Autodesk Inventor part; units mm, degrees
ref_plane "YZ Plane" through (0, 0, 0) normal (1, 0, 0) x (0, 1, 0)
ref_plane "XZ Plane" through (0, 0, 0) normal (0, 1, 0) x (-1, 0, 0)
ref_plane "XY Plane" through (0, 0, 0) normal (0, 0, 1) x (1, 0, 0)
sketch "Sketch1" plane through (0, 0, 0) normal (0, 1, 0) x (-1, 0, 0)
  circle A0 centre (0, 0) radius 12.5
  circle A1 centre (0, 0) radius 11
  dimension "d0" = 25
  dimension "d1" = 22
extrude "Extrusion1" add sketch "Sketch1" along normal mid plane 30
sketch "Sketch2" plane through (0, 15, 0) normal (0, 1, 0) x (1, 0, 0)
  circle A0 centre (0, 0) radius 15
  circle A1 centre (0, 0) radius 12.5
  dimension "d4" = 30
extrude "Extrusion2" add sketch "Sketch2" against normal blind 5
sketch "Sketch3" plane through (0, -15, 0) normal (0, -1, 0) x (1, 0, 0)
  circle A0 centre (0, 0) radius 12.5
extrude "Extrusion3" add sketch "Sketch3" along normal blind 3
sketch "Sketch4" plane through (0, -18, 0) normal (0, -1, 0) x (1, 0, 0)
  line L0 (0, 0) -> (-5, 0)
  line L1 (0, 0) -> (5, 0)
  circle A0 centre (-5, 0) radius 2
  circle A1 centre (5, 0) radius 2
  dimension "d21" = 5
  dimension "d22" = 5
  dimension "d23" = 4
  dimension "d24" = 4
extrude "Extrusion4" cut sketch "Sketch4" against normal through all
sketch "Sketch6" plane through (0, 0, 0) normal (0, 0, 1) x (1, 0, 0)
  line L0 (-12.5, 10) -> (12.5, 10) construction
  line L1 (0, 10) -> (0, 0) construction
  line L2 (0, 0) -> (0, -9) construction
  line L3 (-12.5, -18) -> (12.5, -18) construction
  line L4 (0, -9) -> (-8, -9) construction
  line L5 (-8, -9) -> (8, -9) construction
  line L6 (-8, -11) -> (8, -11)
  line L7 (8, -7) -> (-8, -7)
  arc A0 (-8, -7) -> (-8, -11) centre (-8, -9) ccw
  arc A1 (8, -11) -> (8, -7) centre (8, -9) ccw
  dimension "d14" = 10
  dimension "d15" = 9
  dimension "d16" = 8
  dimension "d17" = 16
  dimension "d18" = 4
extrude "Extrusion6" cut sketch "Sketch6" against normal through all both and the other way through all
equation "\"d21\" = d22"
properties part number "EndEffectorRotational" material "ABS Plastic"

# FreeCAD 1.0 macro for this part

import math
import FreeCAD as App
import Part
import Sketcher

V = App.Vector

doc = App.newDocument("Part")
params = doc.addObject("Spreadsheet::Sheet", "Params")
for row, (alias, value) in enumerate([
    ("sketch1_diameter", "25 mm"),
    ("sketch1_diameter2", "22 mm"),
    ("pad1_length", "30 mm"),
    ("sketch2_diameter", "30 mm"),
    ("sketch2_diameter2", "25 mm"),
    ("pad2_length", "5 mm"),
    ("sketch3_diameter", "25 mm"),
    ("pad3_length", "3 mm"),
    ("sketch4_diameter", "4 mm"),
    ("sketch5_radius", "2 mm"),
    ("sketch5_width", "16 mm"),
], start=1):
    params.set(f"A{row}", alias)
    params.set(f"B{row}", "=" + value)
    params.setAlias(f"B{row}", alias)

body = doc.addObject("PartDesign::Body", "Body")

sketch1 = body.newObject("Sketcher::SketchObject", "Sketch")
sketch1.AttachmentSupport = (doc.getObject("XZ_Plane"), [""])
sketch1.MapMode = "FlatFace"
sketch1.addGeometry([
    Part.Circle(V(0, 0, 0), V(0, 0, 1), 12.5),
    Part.Circle(V(0, 0, 0), V(0, 0, 1), 11),
], False)
sketch1.addConstraint([
    Sketcher.Constraint("Coincident", 0, 3, -1, 1),
    Sketcher.Constraint("Coincident", 1, 3, -1, 1),
    Sketcher.Constraint("Diameter", 0, 25.0),
    Sketcher.Constraint("Diameter", 1, 22.0),
])
sketch1.setExpression("Constraints[2]", "Params.sketch1_diameter")
sketch1.setExpression("Constraints[3]", "Params.sketch1_diameter2")
pad1 = body.newObject("PartDesign::Pad", "Pad")
pad1.Profile = sketch1
pad1.setExpression("Length", "Params.pad1_length")
pad1.Midplane = True

sketch2 = body.newObject("Sketcher::SketchObject", "Sketch001")
sketch2.AttachmentSupport = (doc.getObject("XZ_Plane"), [""])
sketch2.MapMode = "FlatFace"
sketch2.AttachmentOffset = App.Placement(V(0, 0, -15), App.Rotation())
sketch2.addGeometry([
    Part.Circle(V(0, 0, 0), V(0, 0, 1), 15),
    Part.Circle(V(0, 0, 0), V(0, 0, 1), 12.5),
], False)
sketch2.addConstraint([
    Sketcher.Constraint("Coincident", 0, 3, -1, 1),
    Sketcher.Constraint("Coincident", 1, 3, -1, 1),
    Sketcher.Constraint("Diameter", 0, 30.0),
    Sketcher.Constraint("Diameter", 1, 25.0),
])
sketch2.setExpression("Constraints[2]", "Params.sketch2_diameter")
sketch2.setExpression("Constraints[3]", "Params.sketch2_diameter2")
pad2 = body.newObject("PartDesign::Pad", "Pad001")
pad2.Profile = sketch2
pad2.setExpression("Length", "Params.pad2_length")

sketch3 = body.newObject("Sketcher::SketchObject", "Sketch002")
sketch3.AttachmentSupport = (doc.getObject("XZ_Plane"), [""])
sketch3.MapMode = "FlatFace"
sketch3.AttachmentOffset = App.Placement(V(0, 0, 15), App.Rotation())
sketch3.addGeometry(Part.Circle(V(0, 0, 0), V(0, 0, 1), 12.5), False)
sketch3.addConstraint([
    Sketcher.Constraint("Coincident", 0, 3, -1, 1),
    Sketcher.Constraint("Diameter", 0, 25.0),
])
sketch3.setExpression("Constraints[1]", "Params.sketch3_diameter")
pad3 = body.newObject("PartDesign::Pad", "Pad002")
pad3.Profile = sketch3
pad3.setExpression("Length", "Params.pad3_length")

sketch4 = body.newObject("Sketcher::SketchObject", "Sketch003")
sketch4.AttachmentSupport = (doc.getObject("XZ_Plane"), [""])
sketch4.MapMode = "FlatFace"
sketch4.AttachmentOffset = App.Placement(V(0, 0, 18), App.Rotation())
sketch4.addGeometry([
    Part.Circle(V(-5, 0, 0), V(0, 0, 1), 2),
    Part.Circle(V(5, 0, 0), V(0, 0, 1), 2),
], False)
sketch4.addConstraint([
    Sketcher.Constraint("Equal", 0, 1),
    Sketcher.Constraint("Symmetric", 0, 3, 1, 3, -1, 1),
    Sketcher.Constraint("PointOnObject", 0, 3, -1),
    Sketcher.Constraint("Diameter", 0, 4.0),
    Sketcher.Constraint("DistanceX", 0, 3, -1, 1, 5.0),
])
sketch4.setExpression("Constraints[3]", "Params.sketch4_diameter")
pocket1 = body.newObject("PartDesign::Pocket", "Pocket")
pocket1.Profile = sketch4
pocket1.Type = "ThroughAll"

sketch5 = body.newObject("Sketcher::SketchObject", "Sketch004")
sketch5.AttachmentSupport = (doc.getObject("XY_Plane"), [""])
sketch5.MapMode = "FlatFace"
sketch5.addGeometry([
    Part.ArcOfCircle(Part.Circle(V(-8, -9, 0), V(0, 0, 1), 2), math.radians(90), math.radians(270)),
    Part.LineSegment(V(-8, -11, 0), V(8, -11, 0)),
    Part.ArcOfCircle(Part.Circle(V(8, -9, 0), V(0, 0, 1), 2), math.radians(-90), math.radians(90)),
    Part.LineSegment(V(8, -7, 0), V(-8, -7, 0)),
], False)
sketch5.addConstraint([
    Sketcher.Constraint("Tangent", 0, 2, 1, 1),
    Sketcher.Constraint("Tangent", 1, 2, 2, 1),
    Sketcher.Constraint("Tangent", 2, 2, 3, 1),
    Sketcher.Constraint("Tangent", 3, 2, 0, 1),
    Sketcher.Constraint("Horizontal", 1),
    Sketcher.Constraint("Horizontal", 3),
    Sketcher.Constraint("Radius", 0, 2.0),
    Sketcher.Constraint("DistanceX", 1, 1, 1, 2, 16.0),
    Sketcher.Constraint("DistanceX", 0, 3, -1, 1, 8.0),
    Sketcher.Constraint("DistanceY", 0, 3, -1, 1, 9.0),
])
sketch5.setExpression("Constraints[6]", "Params.sketch5_radius")
sketch5.setExpression("Constraints[7]", "Params.sketch5_width")
pocket2 = body.newObject("PartDesign::Pocket", "Pocket001")
pocket2.Profile = sketch5
pocket2.Type = "ThroughAll"
pocket2.Midplane = True

doc.recompute()
